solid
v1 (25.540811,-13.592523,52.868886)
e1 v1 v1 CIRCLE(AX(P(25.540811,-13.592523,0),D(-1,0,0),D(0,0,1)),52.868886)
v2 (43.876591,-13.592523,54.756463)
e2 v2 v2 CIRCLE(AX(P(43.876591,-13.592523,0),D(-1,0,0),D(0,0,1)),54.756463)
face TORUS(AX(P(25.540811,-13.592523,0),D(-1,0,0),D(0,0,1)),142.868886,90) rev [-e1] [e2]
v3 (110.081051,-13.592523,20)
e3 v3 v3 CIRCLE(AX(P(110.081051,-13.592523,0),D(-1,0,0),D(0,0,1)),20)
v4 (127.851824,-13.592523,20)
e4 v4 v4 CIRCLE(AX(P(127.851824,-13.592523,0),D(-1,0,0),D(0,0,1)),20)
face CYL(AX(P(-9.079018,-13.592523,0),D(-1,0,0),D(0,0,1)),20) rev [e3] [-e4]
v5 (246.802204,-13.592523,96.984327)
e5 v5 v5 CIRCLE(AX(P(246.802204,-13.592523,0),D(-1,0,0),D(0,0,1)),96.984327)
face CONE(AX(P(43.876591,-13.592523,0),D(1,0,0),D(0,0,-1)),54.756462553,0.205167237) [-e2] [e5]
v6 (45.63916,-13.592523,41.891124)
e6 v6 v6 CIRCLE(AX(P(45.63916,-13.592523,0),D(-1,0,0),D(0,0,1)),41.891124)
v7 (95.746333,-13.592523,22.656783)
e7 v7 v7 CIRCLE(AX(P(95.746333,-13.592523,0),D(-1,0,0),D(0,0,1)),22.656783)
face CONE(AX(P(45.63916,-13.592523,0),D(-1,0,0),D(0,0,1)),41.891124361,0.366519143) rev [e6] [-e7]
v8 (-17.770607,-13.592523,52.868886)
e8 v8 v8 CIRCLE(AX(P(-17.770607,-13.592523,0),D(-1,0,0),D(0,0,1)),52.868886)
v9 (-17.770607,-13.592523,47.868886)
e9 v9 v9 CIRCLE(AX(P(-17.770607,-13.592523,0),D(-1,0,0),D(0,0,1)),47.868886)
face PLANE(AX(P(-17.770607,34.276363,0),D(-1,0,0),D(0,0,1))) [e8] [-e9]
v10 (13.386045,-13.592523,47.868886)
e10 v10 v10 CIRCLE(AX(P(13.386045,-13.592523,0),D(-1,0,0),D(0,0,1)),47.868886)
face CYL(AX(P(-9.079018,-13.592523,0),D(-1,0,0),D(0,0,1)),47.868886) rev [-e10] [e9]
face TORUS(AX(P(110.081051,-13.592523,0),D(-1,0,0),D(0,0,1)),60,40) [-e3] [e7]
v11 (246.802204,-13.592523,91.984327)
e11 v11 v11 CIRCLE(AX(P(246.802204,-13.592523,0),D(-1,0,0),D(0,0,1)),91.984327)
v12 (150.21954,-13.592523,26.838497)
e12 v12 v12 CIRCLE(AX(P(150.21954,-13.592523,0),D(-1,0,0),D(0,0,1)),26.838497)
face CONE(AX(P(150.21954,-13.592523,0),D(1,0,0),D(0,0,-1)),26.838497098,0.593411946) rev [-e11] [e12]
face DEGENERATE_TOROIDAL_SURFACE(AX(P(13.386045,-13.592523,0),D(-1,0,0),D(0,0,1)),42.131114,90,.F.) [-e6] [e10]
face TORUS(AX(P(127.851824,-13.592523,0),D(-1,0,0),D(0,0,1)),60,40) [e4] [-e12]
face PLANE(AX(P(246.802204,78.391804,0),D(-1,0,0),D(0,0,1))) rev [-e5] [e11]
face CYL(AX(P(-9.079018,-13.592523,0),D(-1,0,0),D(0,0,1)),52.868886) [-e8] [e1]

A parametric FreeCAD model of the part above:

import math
import FreeCAD as App
import Part
import Sketcher

V = App.Vector
Q = App.Units.Quantity

doc = App.newDocument("Part")
body = doc.addObject("PartDesign::Body", "Body")

sketch1 = doc.addObject("Sketcher::SketchObject", "Sketch")
body.addObject(sketch1)
sketch1.AttachmentSupport = (doc.XY_Plane, [""])
sketch1.MapMode = "FlatFace"
sketch1.addGeometry([
    Part.LineSegment(V(46, 28, 0), V(96, 9, 0)),
    Part.ArcOfCircle(Part.Circle(V(110, 46, 0), V(0, 0, 1), 40), math.radians(-111), math.radians(-90)),
    Part.LineSegment(V(110, 6, 0), V(128, 6, 0)),
    Part.ArcOfCircle(Part.Circle(V(128, 46, 0), V(0, 0, 1), 40), math.radians(-90), math.radians(-56)),
    Part.LineSegment(V(150, 13, 0), V(247, 78, 0)),
    Part.LineSegment(V(247, 78, 0), V(247, 83, 0)),
    Part.LineSegment(V(247, 83, 0), V(44, 41, 0)),
    Part.ArcOfCircle(Part.Circle(V(26, 129, 0), V(0, 0, 1), 90), math.radians(-90), math.radians(-78.24)),
    Part.LineSegment(V(26, 39, 0), V(-18, 39, 0)),
    Part.LineSegment(V(-18, 39, 0), V(-18, 34, 0)),
    Part.LineSegment(V(-18, 34, 0), V(13, 34, 0)),
    Part.ArcOfCircle(Part.Circle(V(13, -56, 0), V(0, 0, 1), 90), math.radians(69), math.radians(90)),
], False)
sketch1.addGeometry(Part.LineSegment(V(-18, -14, 0), V(247, -14, 0)), True)
sketch1.addConstraint([
    Sketcher.Constraint("Tangent", 0, 2, 1, 1),
    Sketcher.Constraint("Tangent", 1, 2, 2, 1),
    Sketcher.Constraint("Tangent", 2, 2, 3, 1),
    Sketcher.Constraint("Tangent", 3, 2, 4, 1),
    Sketcher.Constraint("Coincident", 4, 2, 5, 1),
    Sketcher.Constraint("Coincident", 5, 2, 6, 1),
    Sketcher.Constraint("Tangent", 6, 2, 7, 2),
    Sketcher.Constraint("Tangent", 7, 1, 8, 1),
    Sketcher.Constraint("Coincident", 8, 2, 9, 1),
    Sketcher.Constraint("Coincident", 9, 2, 10, 1),
    Sketcher.Constraint("Tangent", 10, 2, 11, 2),
    Sketcher.Constraint("Tangent", 11, 1, 0, 1),
    Sketcher.Constraint("Horizontal", 2),
    Sketcher.Constraint("Vertical", 5),
    Sketcher.Constraint("Horizontal", 8),
    Sketcher.Constraint("Vertical", 9),
    Sketcher.Constraint("Horizontal", 10),
    Sketcher.Constraint("Horizontal", 12),
    Sketcher.Constraint("Equal", 1, 3),
    Sketcher.Constraint("Equal", 7, 11),
    Sketcher.Constraint("Vertical", 9, 2, 12, 1),
    Sketcher.Constraint("Vertical", 5, 2, 12, 2),
    Sketcher.Constraint("Equal", 5, 9),
    Sketcher.Constraint("Radius", 1, 40.0),
    Sketcher.Constraint("Radius", 7, 90.0),
    Sketcher.Constraint("DistanceY", 5, 1, 5, 2, 5.0),
    Sketcher.Constraint("Angle", 0, Q("-21 deg")),
    Sketcher.Constraint("Angle", 4, Q("34 deg")),
    Sketcher.Constraint("DistanceY", 12, 2, 2, 2, 20.0),
    Sketcher.Constraint("DistanceX", 10, 1, 10, 2, 31.156652),
    Sketcher.Constraint("DistanceX", 12, 1, 12, 2, 264.572811),
    Sketcher.Constraint("DistanceY", -1, 1, 11, 1, 28.298601),
    Sketcher.Constraint("Distance", 6, 207.27276),
    Sketcher.Constraint("DistanceX", 2, 1, 2, 2, 17.770773),
    Sketcher.Constraint("DistanceX", 8, 2, 8, 1, 43.311418),
    Sketcher.Constraint("DistanceX", -1, 1, 1, 3, 110.081051),
])
revolution = doc.addObject("PartDesign::Revolution", "Revolution")
body.addObject(revolution)
revolution.Profile = sketch1
revolution.ReferenceAxis = (sketch1, ["Axis0"])
revolution.Angle = 360

doc.recompute()
